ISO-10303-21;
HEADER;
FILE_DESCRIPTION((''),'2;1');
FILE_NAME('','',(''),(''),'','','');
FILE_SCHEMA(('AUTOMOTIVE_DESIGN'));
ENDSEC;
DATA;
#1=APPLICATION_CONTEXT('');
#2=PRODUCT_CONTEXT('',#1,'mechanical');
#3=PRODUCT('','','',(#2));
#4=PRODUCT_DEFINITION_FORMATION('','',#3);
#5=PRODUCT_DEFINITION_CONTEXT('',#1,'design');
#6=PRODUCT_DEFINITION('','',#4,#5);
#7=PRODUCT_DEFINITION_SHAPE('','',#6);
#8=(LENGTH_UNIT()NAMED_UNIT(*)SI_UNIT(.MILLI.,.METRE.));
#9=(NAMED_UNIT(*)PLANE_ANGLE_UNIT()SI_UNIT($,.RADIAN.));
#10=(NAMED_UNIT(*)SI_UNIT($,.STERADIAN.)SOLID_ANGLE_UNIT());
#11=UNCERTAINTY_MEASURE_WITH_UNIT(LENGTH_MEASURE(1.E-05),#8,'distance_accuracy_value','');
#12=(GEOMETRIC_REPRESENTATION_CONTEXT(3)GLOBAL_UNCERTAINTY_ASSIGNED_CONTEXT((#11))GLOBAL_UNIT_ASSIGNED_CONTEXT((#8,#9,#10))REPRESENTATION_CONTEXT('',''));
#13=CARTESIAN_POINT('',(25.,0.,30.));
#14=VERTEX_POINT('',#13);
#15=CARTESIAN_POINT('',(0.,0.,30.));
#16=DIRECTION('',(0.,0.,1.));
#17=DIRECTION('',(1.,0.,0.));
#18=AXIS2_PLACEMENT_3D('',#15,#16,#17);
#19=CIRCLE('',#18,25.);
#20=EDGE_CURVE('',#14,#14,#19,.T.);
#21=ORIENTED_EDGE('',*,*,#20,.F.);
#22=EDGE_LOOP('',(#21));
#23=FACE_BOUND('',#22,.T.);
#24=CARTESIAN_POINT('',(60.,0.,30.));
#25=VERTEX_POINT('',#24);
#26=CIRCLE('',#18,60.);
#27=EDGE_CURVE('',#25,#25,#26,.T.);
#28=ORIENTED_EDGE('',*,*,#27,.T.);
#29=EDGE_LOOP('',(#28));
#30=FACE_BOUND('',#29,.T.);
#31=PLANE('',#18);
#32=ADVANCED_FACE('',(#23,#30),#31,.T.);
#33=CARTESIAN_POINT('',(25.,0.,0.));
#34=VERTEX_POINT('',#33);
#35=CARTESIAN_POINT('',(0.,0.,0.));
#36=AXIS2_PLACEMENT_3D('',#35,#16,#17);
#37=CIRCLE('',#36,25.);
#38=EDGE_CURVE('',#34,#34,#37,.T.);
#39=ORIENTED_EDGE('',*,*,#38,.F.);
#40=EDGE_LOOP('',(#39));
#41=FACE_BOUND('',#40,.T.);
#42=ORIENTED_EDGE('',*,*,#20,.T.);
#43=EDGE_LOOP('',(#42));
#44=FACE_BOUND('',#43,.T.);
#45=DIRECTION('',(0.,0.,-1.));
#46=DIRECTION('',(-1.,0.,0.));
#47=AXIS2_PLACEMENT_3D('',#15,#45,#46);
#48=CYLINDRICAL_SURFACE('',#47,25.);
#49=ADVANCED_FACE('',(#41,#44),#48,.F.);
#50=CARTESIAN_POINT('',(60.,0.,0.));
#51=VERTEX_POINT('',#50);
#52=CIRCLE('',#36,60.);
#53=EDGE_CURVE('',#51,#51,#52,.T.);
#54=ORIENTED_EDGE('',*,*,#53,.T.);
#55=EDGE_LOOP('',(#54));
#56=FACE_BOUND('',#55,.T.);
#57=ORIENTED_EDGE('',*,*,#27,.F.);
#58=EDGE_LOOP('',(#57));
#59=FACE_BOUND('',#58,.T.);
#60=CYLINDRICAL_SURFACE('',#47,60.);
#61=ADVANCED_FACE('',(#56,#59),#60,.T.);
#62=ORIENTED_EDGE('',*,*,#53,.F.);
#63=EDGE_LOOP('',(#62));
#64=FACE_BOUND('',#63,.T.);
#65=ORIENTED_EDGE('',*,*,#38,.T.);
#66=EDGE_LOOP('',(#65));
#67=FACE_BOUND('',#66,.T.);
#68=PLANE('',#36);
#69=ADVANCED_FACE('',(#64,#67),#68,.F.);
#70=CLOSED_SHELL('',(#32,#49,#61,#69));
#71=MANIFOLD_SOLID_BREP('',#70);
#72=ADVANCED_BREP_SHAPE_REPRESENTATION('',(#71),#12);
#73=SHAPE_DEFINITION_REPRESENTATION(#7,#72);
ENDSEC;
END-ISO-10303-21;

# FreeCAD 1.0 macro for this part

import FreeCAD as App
import Part
import Sketcher

V = App.Vector

doc = App.newDocument("Part")
body = doc.addObject("PartDesign::Body", "Body")

# Sketch on XY plane
sketch1 = body.newObject("Sketcher::SketchObject", "Sketch")
sketch1.AttachmentSupport = (doc.getObject("XY_Plane"), [""])
sketch1.MapMode = "FlatFace"
sketch1.addGeometry(Part.Circle(V(0, 0, 0), V(0, 0, 1), 60), False)
sketch1.addGeometry(Part.Circle(V(0, 0, 0), V(0, 0, 1), 25), False)
sketch1.addConstraint(Sketcher.Constraint("Coincident", 0, 3, -1, 1))
sketch1.addConstraint(Sketcher.Constraint("Coincident", 1, 3, -1, 1))
sketch1.addConstraint(Sketcher.Constraint("Diameter", 0, 120.0))
sketch1.addConstraint(Sketcher.Constraint("Diameter", 1, 50.0))
pad1 = body.newObject("PartDesign::Pad", "Pad")
pad1.Profile = sketch1
pad1.Length = 30

doc.recompute()
